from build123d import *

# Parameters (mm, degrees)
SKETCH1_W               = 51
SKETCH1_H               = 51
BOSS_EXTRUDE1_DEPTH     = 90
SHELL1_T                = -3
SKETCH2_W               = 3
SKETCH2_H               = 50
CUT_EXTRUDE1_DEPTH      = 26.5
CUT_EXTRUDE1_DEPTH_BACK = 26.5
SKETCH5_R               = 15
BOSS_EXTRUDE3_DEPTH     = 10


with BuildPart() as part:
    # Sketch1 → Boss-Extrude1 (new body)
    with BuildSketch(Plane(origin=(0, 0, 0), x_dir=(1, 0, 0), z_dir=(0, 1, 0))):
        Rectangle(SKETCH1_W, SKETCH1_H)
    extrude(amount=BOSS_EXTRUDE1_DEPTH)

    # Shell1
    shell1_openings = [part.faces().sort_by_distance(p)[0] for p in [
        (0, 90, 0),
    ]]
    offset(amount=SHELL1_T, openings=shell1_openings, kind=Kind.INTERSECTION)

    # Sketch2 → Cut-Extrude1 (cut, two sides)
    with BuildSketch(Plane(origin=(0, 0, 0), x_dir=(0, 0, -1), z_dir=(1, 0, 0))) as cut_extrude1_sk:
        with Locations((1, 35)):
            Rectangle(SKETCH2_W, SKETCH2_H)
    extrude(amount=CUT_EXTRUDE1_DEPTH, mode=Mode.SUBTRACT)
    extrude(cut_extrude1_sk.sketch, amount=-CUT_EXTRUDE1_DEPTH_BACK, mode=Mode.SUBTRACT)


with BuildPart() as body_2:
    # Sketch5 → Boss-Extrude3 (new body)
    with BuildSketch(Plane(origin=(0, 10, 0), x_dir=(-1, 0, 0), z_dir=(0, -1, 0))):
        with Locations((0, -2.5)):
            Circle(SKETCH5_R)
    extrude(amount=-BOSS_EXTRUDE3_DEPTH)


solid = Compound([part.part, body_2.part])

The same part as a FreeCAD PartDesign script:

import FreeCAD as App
import Part
import Sketcher
Q = App.Units.Quantity


def faces_at(feature, points):
    """Names of the faces that lie closest to the given points."""
    faces = feature.Shape.Faces
    near = lambda p: min(range(len(faces)), key=lambda i: faces[i].distToShape(Part.Vertex(*p))[0])
    return sorted({f"Face{near(p) + 1}" for p in points})

doc = App.newDocument("Part")
body = doc.addObject("PartDesign::Body", "Body")

sketch1 = doc.addObject("Sketcher::SketchObject", "Sketch")
body.addObject(sketch1)
sketch1.AttachmentSupport = (doc.XZ_Plane, [""])
sketch1.MapMode = "FlatFace"
sketch1.addGeometry([
    Part.LineSegment(App.Vector(-25.5, -25.5, 0), App.Vector(-25.5, 25.5, 0)),
    Part.LineSegment(App.Vector(-25.5, 25.5, 0), App.Vector(25.5, 25.5, 0)),
    Part.LineSegment(App.Vector(25.5, 25.5, 0), App.Vector(25.5, -25.5, 0)),
    Part.LineSegment(App.Vector(25.5, -25.5, 0), App.Vector(-25.5, -25.5, 0)),
], False)
sketch1.addConstraint([
    Sketcher.Constraint("Coincident", 0, 2, 1, 1),
    Sketcher.Constraint("Coincident", 1, 2, 2, 1),
    Sketcher.Constraint("Coincident", 2, 2, 3, 1),
    Sketcher.Constraint("Coincident", 3, 2, 0, 1),
    Sketcher.Constraint("Vertical", 0),
    Sketcher.Constraint("Horizontal", 1),
    Sketcher.Constraint("Vertical", 2),
    Sketcher.Constraint("Horizontal", 3),
    Sketcher.Constraint("Symmetric", 0, 2, 2, 2, -1, 1),
    Sketcher.Constraint("Equal", 3, 0),
    Sketcher.Constraint("DistanceX", 1, 1, 1, 2, Q("51 mm")),
])
pad1 = doc.addObject("PartDesign::Pad", "Pad")
body.addObject(pad1)
pad1.Profile = sketch1
pad1.Length = 90
pad1.Reversed = True
doc.recompute()

thickness = doc.addObject("PartDesign::Thickness", "Thickness")
body.addObject(thickness)
thickness.Base = (pad1, faces_at(pad1, [(0, 90, 0)]))
thickness.Value = 3
thickness.Reversed = True
thickness.Join = "Intersection"

sketch2 = doc.addObject("Sketcher::SketchObject", "Sketch001")
body.addObject(sketch2)
sketch2.AttachmentSupport = (doc.YZ_Plane, [""])
sketch2.MapMode = "FlatFace"
sketch2.addGeometry([
    Part.LineSegment(App.Vector(60, 0.5, 0), App.Vector(10, 0.5, 0)),
    Part.LineSegment(App.Vector(10, 0.5, 0), App.Vector(10, -2.5, 0)),
    Part.LineSegment(App.Vector(10, -2.5, 0), App.Vector(60, -2.5, 0)),
    Part.LineSegment(App.Vector(60, -2.5, 0), App.Vector(60, 0.5, 0)),
], False)
sketch2.addConstraint([
    Sketcher.Constraint("Coincident", 0, 2, 1, 1),
    Sketcher.Constraint("Coincident", 1, 2, 2, 1),
    Sketcher.Constraint("Coincident", 2, 2, 3, 1),
    Sketcher.Constraint("Coincident", 3, 2, 0, 1),
    Sketcher.Constraint("Horizontal", 0),
    Sketcher.Constraint("Vertical", 1),
    Sketcher.Constraint("Horizontal", 2),
    Sketcher.Constraint("Vertical", 3),
    Sketcher.Constraint("DistanceX", 0, 2, 0, 1, Q("50 mm")),
    Sketcher.Constraint("DistanceY", 1, 2, 1, 1, Q("3 mm")),
    Sketcher.Constraint("DistanceX", -1, 1, 0, 2, Q("10 mm")),
    Sketcher.Constraint("DistanceY", -1, 1, 0, 2, Q("0.5 mm")),
])
pocket1 = doc.addObject("PartDesign::Pocket", "Pocket")
body.addObject(pocket1)
pocket1.Profile = sketch2
pocket1.Type = "ThroughAll"
pocket1.Midplane = True
body2 = doc.addObject("PartDesign::Body", "Body001")

sketch3 = doc.addObject("Sketcher::SketchObject", "Sketch002")
body2.addObject(sketch3)
sketch3.AttachmentSupport = (doc.getObject("XZ_Plane001"), [""])
sketch3.MapMode = "FlatFace"
sketch3.AttachmentOffset = App.Placement(App.Vector(0, 0, -10), App.Rotation())
sketch3.addGeometry(Part.Circle(App.Vector(0, 2.5, 0), App.Vector(0, 0, 1), 15), False)
sketch3.addConstraint([
    Sketcher.Constraint("PointOnObject", 0, 3, -2),
    Sketcher.Constraint("Diameter", 0, Q("30 mm")),
    Sketcher.Constraint("DistanceY", -1, 1, 0, 3, Q("2.5 mm")),
])
pad2 = doc.addObject("PartDesign::Pad", "Pad001")
body2.addObject(pad2)
pad2.Profile = sketch3
pad2.Length = 10
pad2.Reversed = True

doc.recompute()
